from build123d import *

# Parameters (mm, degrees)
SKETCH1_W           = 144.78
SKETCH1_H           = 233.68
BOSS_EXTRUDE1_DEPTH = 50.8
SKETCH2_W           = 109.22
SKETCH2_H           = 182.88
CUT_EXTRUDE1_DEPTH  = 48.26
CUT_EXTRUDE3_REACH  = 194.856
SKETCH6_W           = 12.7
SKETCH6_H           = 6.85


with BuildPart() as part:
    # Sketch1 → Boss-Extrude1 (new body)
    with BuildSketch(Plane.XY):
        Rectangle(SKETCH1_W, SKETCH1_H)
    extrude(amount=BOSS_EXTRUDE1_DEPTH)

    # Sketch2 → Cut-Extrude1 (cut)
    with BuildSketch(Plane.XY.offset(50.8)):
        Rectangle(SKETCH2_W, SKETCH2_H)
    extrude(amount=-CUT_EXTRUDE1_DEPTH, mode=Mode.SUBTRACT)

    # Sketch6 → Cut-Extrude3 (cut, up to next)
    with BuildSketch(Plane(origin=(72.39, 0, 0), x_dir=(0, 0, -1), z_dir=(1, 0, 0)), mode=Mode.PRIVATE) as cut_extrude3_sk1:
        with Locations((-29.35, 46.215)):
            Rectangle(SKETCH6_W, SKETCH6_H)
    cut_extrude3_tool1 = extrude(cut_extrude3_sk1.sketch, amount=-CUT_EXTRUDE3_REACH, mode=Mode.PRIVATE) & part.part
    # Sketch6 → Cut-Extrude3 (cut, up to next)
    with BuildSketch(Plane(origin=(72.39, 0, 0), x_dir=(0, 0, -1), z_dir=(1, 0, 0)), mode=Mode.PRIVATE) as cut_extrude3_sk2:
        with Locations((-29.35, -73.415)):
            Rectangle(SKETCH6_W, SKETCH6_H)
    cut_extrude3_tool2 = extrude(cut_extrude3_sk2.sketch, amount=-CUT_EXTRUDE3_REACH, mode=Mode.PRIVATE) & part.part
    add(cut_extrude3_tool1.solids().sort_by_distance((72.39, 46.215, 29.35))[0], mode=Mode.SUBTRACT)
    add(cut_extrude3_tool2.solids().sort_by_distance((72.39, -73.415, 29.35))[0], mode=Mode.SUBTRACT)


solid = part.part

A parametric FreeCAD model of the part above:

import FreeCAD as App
import Part
import Sketcher
Q = App.Units.Quantity


def add_polygon(sketch, points):
    """Adds a closed chain of lines whose ends are joined by coincident constraints."""
    first, n = sketch.GeometryCount, len(points)
    for a, b in zip(points, points[1:] + points[:1]):
        sketch.addGeometry(Part.LineSegment(App.Vector(*a, 0), App.Vector(*b, 0)), False)
    for i in range(n):
        sketch.addConstraint(Sketcher.Constraint("Coincident", first + i, 2, first + (i + 1) % n, 1))

doc = App.newDocument("Part")
body = doc.addObject("PartDesign::Body", "Body")

# Sketch on XY plane
sketch1 = body.newObject("Sketcher::SketchObject", "Sketch")
sketch1.AttachmentSupport = (doc.getObject("XY_Plane"), [""])
sketch1.MapMode = "FlatFace"
add_polygon(sketch1, [(-72.39, 116.84), (-72.39, -116.84), (72.39, -116.84), (72.39, 116.84)])  # lines 0-3
sketch1.addConstraint(Sketcher.Constraint("Vertical", 0))
sketch1.addConstraint(Sketcher.Constraint("Horizontal", 1))
sketch1.addConstraint(Sketcher.Constraint("Vertical", 2))
sketch1.addConstraint(Sketcher.Constraint("Horizontal", 3))
sketch1.addConstraint(Sketcher.Constraint("Symmetric", 0, 2, 2, 2, -1, 1))
sketch1.addConstraint(Sketcher.Constraint("DistanceX", 1, 1, 1, 2, Q("5.7 in")))
sketch1.addConstraint(Sketcher.Constraint("DistanceY", 0, 2, 0, 1, Q("9.2 in")))
pad1 = body.newObject("PartDesign::Pad", "Pad")
pad1.Profile = sketch1
pad1.Length = Q("2 in")

# Sketch on XY plane
sketch2 = body.newObject("Sketcher::SketchObject", "Sketch001")
sketch2.AttachmentSupport = (doc.getObject("XY_Plane"), [""])
sketch2.MapMode = "FlatFace"
sketch2.AttachmentOffset = App.Placement(App.Vector(0, 0, 2 * 25.4), App.Rotation())
add_polygon(sketch2, [(-54.61, 91.44), (-54.61, -91.44), (54.61, -91.44), (54.61, 91.44)])  # lines 0-3
sketch2.addConstraint(Sketcher.Constraint("Vertical", 0))
sketch2.addConstraint(Sketcher.Constraint("Horizontal", 1))
sketch2.addConstraint(Sketcher.Constraint("Vertical", 2))
sketch2.addConstraint(Sketcher.Constraint("Horizontal", 3))
sketch2.addConstraint(Sketcher.Constraint("Symmetric", 0, 2, 2, 2, -1, 1))
sketch2.addConstraint(Sketcher.Constraint("DistanceX", 1, 1, 1, 2, Q("4.3 in")))
sketch2.addConstraint(Sketcher.Constraint("DistanceY", 0, 2, 0, 1, Q("7.2 in")))
pocket1 = body.newObject("PartDesign::Pocket", "Pocket")
pocket1.Profile = sketch2
pocket1.Length = Q("1.9 in")

# Sketch on YZ plane
sketch3 = body.newObject("Sketcher::SketchObject", "Sketch002")
sketch3.AttachmentSupport = (doc.getObject("YZ_Plane"), [""])
sketch3.MapMode = "FlatFace"
sketch3.AttachmentOffset = App.Placement(App.Vector(0, 0, 2.85 * 25.4), App.Rotation())
add_polygon(sketch3, [(49.64, 35.7), (42.79, 35.7), (42.79, 23), (49.64, 23)])  # lines 0-3
sketch3.addConstraint(Sketcher.Constraint("Horizontal", 0))
sketch3.addConstraint(Sketcher.Constraint("Vertical", 1))
sketch3.addConstraint(Sketcher.Constraint("Horizontal", 2))
sketch3.addConstraint(Sketcher.Constraint("Vertical", 3))
sketch3.addConstraint(Sketcher.Constraint("DistanceY", 1, 2, 1, 1, Q("0.5 in")))
sketch3.addConstraint(Sketcher.Constraint("DistanceX", 0, 2, 0, 1, 6.85))
sketch3.addConstraint(Sketcher.Constraint("DistanceX", -1, 1, 0, 2, 42.79))
sketch3.addConstraint(Sketcher.Constraint("DistanceY", -1, 1, 0, 2, 35.7))
pocket2 = body.newObject("PartDesign::Pocket", "Pocket001")
pocket2.Profile = sketch3
pocket2.Type = "UpToFirst"

# Sketch on YZ plane
sketch4 = body.newObject("Sketcher::SketchObject", "Sketch003")
sketch4.AttachmentSupport = (doc.getObject("YZ_Plane"), [""])
sketch4.MapMode = "FlatFace"
sketch4.AttachmentOffset = App.Placement(App.Vector(0, 0, 2.85 * 25.4), App.Rotation())
add_polygon(sketch4, [(-69.99, 35.7), (-76.84, 35.7), (-76.84, 23), (-69.99, 23)])  # lines 0-3
sketch4.addConstraint(Sketcher.Constraint("Horizontal", 0))
sketch4.addConstraint(Sketcher.Constraint("Vertical", 1))
sketch4.addConstraint(Sketcher.Constraint("Horizontal", 2))
sketch4.addConstraint(Sketcher.Constraint("Vertical", 3))
sketch4.addConstraint(Sketcher.Constraint("DistanceY", 1, 2, 1, 1, Q("0.5 in")))
sketch4.addConstraint(Sketcher.Constraint("DistanceX", 0, 2, 0, 1, 6.85))
sketch4.addConstraint(Sketcher.Constraint("DistanceX", 0, 2, -1, 1, 76.84))
sketch4.addConstraint(Sketcher.Constraint("DistanceY", -1, 1, 0, 2, 35.7))
pocket3 = body.newObject("PartDesign::Pocket", "Pocket002")
pocket3.Profile = sketch4
pocket3.Type = "UpToFirst"

doc.recompute()
